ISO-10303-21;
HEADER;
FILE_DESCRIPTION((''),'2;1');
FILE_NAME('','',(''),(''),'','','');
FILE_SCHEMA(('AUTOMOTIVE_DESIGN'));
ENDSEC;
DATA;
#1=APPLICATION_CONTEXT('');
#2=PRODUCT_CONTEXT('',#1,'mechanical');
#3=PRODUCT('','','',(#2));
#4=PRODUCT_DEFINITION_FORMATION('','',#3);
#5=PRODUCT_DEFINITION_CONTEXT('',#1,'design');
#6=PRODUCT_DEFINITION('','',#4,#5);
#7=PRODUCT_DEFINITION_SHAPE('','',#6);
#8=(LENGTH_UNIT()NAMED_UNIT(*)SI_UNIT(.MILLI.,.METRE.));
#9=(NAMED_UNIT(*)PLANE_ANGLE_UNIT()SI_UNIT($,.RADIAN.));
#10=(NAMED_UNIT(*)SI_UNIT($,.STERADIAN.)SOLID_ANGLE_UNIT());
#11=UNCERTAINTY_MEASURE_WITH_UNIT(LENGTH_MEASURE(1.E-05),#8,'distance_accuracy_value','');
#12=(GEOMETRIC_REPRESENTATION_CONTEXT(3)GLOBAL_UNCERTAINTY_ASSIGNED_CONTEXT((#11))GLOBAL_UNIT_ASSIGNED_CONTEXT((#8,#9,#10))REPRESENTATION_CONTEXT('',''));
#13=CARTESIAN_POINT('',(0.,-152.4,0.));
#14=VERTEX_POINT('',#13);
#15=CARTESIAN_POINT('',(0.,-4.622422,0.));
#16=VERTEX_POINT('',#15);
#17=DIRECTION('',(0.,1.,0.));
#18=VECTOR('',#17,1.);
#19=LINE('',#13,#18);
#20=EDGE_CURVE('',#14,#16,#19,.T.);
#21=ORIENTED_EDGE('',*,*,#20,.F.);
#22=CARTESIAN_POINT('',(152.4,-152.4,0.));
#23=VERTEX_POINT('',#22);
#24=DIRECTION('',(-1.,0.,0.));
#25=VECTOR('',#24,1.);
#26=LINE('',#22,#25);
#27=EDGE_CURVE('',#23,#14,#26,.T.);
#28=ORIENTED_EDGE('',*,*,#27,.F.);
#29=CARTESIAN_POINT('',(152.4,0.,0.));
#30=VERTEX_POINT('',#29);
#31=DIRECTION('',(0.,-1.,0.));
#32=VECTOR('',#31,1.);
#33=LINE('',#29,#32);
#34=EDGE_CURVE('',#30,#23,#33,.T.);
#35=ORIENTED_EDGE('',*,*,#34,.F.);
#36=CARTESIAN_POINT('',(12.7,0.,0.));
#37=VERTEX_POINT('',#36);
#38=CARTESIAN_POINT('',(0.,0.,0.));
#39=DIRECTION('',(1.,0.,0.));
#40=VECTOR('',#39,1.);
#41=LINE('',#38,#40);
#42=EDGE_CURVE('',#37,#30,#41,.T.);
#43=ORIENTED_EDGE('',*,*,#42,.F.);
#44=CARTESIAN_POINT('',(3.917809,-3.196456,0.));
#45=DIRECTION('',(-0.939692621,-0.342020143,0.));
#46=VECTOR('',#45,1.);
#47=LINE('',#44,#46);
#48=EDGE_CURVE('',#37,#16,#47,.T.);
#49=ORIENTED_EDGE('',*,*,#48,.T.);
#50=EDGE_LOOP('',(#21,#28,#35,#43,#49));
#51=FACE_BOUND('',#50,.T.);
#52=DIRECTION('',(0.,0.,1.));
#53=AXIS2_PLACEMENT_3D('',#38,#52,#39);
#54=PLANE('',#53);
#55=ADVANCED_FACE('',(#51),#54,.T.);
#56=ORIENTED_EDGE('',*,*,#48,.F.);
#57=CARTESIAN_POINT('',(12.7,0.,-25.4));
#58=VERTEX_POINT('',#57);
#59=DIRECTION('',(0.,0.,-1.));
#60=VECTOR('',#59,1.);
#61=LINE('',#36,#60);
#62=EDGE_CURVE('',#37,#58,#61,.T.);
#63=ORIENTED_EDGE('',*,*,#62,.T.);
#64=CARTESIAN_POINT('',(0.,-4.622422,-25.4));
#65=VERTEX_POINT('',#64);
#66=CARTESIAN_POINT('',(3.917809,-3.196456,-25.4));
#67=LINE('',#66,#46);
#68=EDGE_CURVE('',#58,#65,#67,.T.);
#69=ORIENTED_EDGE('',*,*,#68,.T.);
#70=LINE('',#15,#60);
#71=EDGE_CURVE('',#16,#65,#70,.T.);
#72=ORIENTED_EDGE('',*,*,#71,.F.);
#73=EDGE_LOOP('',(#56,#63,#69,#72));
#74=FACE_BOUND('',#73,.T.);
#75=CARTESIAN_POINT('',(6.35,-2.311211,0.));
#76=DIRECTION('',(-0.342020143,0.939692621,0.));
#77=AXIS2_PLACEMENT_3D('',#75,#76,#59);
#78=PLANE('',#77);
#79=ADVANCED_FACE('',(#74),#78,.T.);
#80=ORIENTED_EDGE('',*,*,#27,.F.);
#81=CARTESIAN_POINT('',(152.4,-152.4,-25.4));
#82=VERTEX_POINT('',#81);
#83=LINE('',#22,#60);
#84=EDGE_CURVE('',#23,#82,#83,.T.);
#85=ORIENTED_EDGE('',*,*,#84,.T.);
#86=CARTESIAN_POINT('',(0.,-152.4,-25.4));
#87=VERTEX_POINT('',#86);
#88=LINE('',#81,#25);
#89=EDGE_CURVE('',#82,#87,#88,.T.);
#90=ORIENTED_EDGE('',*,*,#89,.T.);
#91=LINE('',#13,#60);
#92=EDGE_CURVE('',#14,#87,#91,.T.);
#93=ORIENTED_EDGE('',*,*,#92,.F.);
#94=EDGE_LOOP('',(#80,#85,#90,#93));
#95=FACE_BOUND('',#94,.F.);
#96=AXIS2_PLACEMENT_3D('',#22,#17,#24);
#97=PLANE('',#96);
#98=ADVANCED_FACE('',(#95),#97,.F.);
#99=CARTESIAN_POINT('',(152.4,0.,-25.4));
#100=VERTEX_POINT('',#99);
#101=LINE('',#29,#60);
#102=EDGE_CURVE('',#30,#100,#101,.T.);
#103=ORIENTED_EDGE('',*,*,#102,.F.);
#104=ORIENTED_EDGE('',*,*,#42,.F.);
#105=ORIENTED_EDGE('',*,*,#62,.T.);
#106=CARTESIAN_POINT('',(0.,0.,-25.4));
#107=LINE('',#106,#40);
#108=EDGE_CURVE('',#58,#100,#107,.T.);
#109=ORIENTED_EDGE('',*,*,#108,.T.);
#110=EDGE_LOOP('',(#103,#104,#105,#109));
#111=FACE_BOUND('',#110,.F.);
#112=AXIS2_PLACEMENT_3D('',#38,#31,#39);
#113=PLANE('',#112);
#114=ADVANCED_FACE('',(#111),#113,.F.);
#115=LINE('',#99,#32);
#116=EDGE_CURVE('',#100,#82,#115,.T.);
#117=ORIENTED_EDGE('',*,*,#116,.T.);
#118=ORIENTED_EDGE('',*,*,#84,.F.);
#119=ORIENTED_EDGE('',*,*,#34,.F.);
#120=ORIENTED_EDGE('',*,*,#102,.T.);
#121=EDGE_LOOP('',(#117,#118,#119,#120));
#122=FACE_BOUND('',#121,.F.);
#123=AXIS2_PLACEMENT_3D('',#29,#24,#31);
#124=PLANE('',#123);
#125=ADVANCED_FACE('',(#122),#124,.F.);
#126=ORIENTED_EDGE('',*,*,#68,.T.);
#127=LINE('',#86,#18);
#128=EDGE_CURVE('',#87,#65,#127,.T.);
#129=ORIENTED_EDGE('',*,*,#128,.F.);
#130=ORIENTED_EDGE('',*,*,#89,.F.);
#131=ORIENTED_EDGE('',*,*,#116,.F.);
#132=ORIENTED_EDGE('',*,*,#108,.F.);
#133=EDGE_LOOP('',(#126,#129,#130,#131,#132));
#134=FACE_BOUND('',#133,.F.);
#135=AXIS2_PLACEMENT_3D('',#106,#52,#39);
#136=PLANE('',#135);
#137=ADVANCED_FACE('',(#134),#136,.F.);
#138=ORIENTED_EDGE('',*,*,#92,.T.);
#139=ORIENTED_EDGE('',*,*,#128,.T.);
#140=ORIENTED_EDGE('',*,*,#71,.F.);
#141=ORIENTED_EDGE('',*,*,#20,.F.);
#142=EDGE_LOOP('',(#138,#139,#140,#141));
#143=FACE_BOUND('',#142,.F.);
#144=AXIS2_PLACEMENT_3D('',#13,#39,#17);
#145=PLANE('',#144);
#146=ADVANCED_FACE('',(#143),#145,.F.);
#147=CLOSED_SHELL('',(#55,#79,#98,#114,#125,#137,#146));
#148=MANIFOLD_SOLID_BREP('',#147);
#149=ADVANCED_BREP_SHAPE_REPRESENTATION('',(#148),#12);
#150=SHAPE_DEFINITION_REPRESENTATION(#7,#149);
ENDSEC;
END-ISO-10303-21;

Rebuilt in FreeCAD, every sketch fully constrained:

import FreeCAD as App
import Part
import Sketcher

V = App.Vector
Q = App.Units.Quantity


def edges_at(feature, points):
    """Names of the edges that pass closest to the given points."""
    edges = feature.Shape.Edges
    near = lambda p: min(range(len(edges)), key=lambda i: edges[i].distToShape(Part.Vertex(*p))[0])
    return sorted({f"Edge{near(p) + 1}" for p in points})


def add_polygon(sketch, points):
    """Adds a closed chain of lines whose ends are joined by coincident constraints."""
    first, n = sketch.GeometryCount, len(points)
    for a, b in zip(points, points[1:] + points[:1]):
        sketch.addGeometry(Part.LineSegment(App.Vector(*a, 0), App.Vector(*b, 0)), False)
    for i in range(n):
        sketch.addConstraint(Sketcher.Constraint("Coincident", first + i, 2, first + (i + 1) % n, 1))

doc = App.newDocument("Part")
params = doc.addObject("Spreadsheet::Sheet", "Params")
for row, (alias, value) in enumerate([
    ("sketch1_width", "6 in"),
    ("pad1_length", "1 in"),
    ("chamfer_size", "0.5 in"),
], start=1):
    params.set(f"A{row}", alias)
    params.set(f"B{row}", "=" + value)
    params.setAlias(f"B{row}", alias)

body = doc.addObject("PartDesign::Body", "Body")

# Sketch on XY plane
sketch1 = doc.addObject("Sketcher::SketchObject", "Sketch")
body.addObject(sketch1)
sketch1.AttachmentSupport = (doc.XY_Plane, [""])
sketch1.MapMode = "FlatFace"
add_polygon(sketch1, [(152, 0), (0, 0), (0, -152), (152, -152)])  # lines 0-3
sketch1.addConstraint([
    Sketcher.Constraint("Horizontal", 0),
    Sketcher.Constraint("Vertical", 1),
    Sketcher.Constraint("Horizontal", 2),
    Sketcher.Constraint("Vertical", 3),
    Sketcher.Constraint("Coincident", 0, 2, -1, 1),
    Sketcher.Constraint("Equal", 2, 1),
    Sketcher.Constraint("DistanceX", 0, 2, 0, 1, Q("6 in")),
])
sketch1.setExpression("Constraints[10]", "Params.sketch1_width")
pad1 = doc.addObject("PartDesign::Pad", "Pad")
body.addObject(pad1)
pad1.Profile = sketch1
pad1.setExpression("Length", "Params.pad1_length")
pad1.Reversed = True
doc.recompute()

chamfer = doc.addObject("PartDesign::Chamfer", "Chamfer")
body.addObject(chamfer)
chamfer.Base = (pad1, edges_at(pad1, [(0, 0, -12.7)]))
chamfer.ChamferType = "Distance and Angle"
chamfer.setExpression("Size", "Params.chamfer_size")
chamfer.Angle = 20

doc.recompute()
